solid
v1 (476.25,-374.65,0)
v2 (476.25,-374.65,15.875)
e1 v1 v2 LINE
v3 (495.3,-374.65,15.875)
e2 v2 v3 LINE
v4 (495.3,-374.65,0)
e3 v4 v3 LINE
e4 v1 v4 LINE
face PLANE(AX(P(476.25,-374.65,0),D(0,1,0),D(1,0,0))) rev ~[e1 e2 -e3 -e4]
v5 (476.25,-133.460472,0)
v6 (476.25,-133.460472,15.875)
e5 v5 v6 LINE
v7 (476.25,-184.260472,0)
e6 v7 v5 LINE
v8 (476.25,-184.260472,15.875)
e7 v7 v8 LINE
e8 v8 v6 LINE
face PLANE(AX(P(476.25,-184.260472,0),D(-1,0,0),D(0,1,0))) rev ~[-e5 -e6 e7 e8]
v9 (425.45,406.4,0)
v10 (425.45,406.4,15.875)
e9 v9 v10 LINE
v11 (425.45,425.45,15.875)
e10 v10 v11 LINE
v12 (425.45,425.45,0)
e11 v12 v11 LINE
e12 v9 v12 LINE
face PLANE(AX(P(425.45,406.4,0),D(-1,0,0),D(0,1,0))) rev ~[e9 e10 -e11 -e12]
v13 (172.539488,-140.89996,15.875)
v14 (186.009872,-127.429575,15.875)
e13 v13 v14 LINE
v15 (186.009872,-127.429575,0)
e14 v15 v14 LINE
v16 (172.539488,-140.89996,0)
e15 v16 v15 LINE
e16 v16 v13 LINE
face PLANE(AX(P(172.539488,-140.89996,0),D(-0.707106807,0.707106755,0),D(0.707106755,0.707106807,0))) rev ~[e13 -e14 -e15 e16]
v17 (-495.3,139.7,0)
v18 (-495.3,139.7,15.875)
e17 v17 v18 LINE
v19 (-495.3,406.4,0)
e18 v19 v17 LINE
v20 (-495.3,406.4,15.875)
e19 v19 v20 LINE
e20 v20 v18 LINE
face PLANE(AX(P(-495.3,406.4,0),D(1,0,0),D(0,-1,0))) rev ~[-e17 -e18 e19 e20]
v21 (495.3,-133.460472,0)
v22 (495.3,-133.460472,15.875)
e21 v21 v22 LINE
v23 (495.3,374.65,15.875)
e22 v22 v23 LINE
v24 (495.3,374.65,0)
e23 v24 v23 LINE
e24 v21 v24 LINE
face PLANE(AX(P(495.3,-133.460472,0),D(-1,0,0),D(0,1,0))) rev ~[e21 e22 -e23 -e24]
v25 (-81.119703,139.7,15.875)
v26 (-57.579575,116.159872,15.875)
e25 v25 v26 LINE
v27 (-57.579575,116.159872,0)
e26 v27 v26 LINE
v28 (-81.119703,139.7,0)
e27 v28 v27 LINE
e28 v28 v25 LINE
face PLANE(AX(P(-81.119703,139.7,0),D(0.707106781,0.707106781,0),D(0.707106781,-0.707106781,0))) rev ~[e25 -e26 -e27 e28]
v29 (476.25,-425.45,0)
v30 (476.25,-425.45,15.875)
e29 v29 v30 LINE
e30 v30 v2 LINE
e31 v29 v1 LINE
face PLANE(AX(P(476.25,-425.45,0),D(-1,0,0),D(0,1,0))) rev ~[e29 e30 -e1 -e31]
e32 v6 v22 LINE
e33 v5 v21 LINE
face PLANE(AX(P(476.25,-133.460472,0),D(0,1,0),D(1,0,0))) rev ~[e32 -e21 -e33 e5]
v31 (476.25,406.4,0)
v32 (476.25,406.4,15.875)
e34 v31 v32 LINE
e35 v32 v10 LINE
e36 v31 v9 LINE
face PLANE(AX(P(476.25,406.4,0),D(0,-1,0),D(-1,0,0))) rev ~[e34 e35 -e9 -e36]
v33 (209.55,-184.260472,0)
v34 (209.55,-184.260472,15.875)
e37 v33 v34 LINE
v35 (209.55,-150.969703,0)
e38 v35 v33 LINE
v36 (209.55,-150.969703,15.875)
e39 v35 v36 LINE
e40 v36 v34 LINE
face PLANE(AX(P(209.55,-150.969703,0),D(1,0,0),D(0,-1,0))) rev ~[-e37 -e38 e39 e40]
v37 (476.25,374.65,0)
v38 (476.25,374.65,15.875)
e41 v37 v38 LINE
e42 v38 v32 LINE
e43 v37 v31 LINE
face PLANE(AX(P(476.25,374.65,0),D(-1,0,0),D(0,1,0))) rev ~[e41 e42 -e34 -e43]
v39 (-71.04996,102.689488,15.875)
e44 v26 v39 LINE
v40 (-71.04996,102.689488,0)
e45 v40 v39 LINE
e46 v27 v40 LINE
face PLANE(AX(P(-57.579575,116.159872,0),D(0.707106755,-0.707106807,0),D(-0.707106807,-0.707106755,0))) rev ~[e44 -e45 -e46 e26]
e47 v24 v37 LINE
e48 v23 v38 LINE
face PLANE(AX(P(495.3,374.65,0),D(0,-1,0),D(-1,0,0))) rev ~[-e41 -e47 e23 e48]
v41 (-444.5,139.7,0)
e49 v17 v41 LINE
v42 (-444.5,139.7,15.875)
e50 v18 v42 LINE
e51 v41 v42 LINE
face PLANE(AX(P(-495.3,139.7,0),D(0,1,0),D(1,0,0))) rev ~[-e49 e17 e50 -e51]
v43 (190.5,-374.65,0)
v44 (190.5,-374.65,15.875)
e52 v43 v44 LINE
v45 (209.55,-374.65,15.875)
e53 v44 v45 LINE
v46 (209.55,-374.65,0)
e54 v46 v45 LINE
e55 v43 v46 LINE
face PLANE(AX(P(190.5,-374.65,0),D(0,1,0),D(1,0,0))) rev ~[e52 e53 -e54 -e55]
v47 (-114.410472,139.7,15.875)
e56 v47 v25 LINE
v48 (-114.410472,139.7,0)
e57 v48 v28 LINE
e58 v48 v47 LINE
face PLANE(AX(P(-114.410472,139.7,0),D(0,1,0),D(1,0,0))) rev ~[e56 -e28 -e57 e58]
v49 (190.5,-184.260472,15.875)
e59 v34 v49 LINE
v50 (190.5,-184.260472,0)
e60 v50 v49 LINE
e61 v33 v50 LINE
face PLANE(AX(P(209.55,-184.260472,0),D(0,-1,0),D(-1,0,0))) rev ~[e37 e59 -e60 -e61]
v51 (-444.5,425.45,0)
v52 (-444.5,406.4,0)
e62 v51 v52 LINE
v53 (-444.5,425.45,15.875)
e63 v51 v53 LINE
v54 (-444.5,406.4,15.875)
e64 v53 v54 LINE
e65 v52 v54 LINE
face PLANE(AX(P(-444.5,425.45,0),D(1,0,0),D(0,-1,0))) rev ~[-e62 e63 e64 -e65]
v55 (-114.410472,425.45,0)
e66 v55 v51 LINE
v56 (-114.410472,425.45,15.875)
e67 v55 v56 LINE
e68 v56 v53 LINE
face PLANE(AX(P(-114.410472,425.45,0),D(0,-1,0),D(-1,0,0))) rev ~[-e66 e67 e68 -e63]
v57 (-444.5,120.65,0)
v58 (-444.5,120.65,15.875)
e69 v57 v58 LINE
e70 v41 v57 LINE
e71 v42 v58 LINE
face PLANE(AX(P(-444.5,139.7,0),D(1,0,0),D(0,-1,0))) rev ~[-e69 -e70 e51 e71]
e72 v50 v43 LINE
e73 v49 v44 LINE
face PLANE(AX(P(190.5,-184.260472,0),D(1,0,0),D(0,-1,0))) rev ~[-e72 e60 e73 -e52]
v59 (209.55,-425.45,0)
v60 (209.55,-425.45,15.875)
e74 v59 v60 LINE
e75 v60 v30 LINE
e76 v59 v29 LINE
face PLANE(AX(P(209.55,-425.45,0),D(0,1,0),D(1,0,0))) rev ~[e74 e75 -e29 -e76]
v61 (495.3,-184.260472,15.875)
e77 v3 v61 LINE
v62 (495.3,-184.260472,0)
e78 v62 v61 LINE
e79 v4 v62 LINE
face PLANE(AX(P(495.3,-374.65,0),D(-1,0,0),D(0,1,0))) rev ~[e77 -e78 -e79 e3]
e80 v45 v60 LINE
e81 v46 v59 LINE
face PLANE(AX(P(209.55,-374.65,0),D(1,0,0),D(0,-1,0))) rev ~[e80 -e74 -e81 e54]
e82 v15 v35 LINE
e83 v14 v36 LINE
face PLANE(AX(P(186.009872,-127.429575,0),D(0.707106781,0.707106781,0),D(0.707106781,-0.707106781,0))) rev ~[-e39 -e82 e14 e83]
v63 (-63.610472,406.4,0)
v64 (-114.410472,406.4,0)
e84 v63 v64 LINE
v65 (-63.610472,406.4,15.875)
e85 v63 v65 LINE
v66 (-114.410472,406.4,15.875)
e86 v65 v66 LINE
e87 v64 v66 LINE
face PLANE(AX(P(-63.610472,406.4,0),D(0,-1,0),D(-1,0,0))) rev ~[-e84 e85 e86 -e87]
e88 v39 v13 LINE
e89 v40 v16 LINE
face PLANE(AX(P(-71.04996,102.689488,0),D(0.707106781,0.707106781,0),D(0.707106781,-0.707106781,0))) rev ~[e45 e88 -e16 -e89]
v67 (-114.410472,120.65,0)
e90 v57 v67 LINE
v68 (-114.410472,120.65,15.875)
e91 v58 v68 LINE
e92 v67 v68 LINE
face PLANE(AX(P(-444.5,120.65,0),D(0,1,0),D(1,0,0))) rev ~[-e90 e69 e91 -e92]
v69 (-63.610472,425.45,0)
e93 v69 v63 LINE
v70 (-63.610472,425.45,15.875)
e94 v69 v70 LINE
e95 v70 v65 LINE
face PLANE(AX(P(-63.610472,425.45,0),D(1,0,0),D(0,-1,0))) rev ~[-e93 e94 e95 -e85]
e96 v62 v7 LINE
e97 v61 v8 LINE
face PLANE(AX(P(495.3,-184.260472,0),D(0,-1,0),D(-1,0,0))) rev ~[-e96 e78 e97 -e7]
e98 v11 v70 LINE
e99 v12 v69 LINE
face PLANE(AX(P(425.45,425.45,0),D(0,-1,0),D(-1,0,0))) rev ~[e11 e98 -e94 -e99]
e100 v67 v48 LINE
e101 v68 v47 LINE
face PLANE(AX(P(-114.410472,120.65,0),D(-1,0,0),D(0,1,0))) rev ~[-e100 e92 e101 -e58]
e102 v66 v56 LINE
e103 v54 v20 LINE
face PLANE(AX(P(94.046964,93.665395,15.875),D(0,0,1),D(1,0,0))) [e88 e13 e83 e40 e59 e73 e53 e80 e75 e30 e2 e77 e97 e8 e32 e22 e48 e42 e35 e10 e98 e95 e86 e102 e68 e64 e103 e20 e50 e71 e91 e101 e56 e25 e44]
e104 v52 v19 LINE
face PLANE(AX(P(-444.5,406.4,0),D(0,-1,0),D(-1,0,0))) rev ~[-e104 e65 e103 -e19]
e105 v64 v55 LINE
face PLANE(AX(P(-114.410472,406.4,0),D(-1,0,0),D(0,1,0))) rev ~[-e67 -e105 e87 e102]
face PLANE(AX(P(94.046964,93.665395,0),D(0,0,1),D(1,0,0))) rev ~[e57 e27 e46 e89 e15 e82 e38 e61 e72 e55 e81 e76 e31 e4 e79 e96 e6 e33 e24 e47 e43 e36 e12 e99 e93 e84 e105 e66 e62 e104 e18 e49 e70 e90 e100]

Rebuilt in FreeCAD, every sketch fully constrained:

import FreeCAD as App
import Part
import Sketcher

V = App.Vector
Q = App.Units.Quantity


def add_polygon(sketch, points):
    """Adds a closed chain of lines whose ends are joined by coincident constraints."""
    first, n = sketch.GeometryCount, len(points)
    for a, b in zip(points, points[1:] + points[:1]):
        sketch.addGeometry(Part.LineSegment(App.Vector(*a, 0), App.Vector(*b, 0)), False)
    for i in range(n):
        sketch.addConstraint(Sketcher.Constraint("Coincident", first + i, 2, first + (i + 1) % n, 1))

doc = App.newDocument("Part")
body = doc.addObject("PartDesign::Body", "Body")

sketch1 = body.newObject("Sketcher::SketchObject", "Sketch")
sketch1.AttachmentSupport = (doc.getObject("XY_Plane"), [""])
sketch1.MapMode = "FlatFace"
add_polygon(sketch1, [(210, -375), (210, -425), (476, -425), (476, -375), (495, -375), (495, -184), (476, -184), (476, -133), (495, -133), (495, 375), (476, 375), (476, 406), (425, 406), (425, 425), (-64, 425), (-64, 406), (-114, 406), (-114, 425), (-444, 425), (-444, 406), (-495, 406), (-495, 140), (-444, 140), (-444, 121), (-114, 121), (-114, 140), (-81, 140), (-58, 116), (-71, 103), (173, -141), (186, -127), (210, -151), (210, -184), (190, -184), (190, -375)])
sketch1.addConstraint([
    Sketcher.Constraint("Vertical", 0),
    Sketcher.Constraint("Horizontal", 1),
    Sketcher.Constraint("Vertical", 2),
    Sketcher.Constraint("Horizontal", 3),
    Sketcher.Constraint("Vertical", 4),
    Sketcher.Constraint("Horizontal", 5),
    Sketcher.Constraint("Vertical", 6),
    Sketcher.Constraint("Horizontal", 7),
    Sketcher.Constraint("Vertical", 8),
    Sketcher.Constraint("Horizontal", 9),
    Sketcher.Constraint("Vertical", 10),
    Sketcher.Constraint("Horizontal", 11),
    Sketcher.Constraint("Vertical", 12),
    Sketcher.Constraint("Horizontal", 13),
    Sketcher.Constraint("Vertical", 14),
    Sketcher.Constraint("Horizontal", 15),
    Sketcher.Constraint("Vertical", 16),
    Sketcher.Constraint("Horizontal", 17),
    Sketcher.Constraint("Vertical", 18),
    Sketcher.Constraint("Horizontal", 19),
    Sketcher.Constraint("Vertical", 20),
    Sketcher.Constraint("Horizontal", 21),
    Sketcher.Constraint("Vertical", 22),
    Sketcher.Constraint("Horizontal", 23),
    Sketcher.Constraint("Vertical", 24),
    Sketcher.Constraint("Horizontal", 25),
    Sketcher.Constraint("Vertical", 31),
    Sketcher.Constraint("Horizontal", 32),
    Sketcher.Constraint("Vertical", 33),
    Sketcher.Constraint("Horizontal", 34),
    Sketcher.Constraint("Symmetric", 3, 2, 8, 2, -1),
    Sketcher.Constraint("Perpendicular", 26, 27),
    Sketcher.Constraint("Perpendicular", 27, 28),
    Sketcher.Constraint("Perpendicular", 28, 29),
    Sketcher.Constraint("Perpendicular", 29, 30),
    Sketcher.Constraint("Horizontal", 11, 2, 14, 2),
    Sketcher.Constraint("Horizontal", 13, 2, 16, 2),
    Sketcher.Constraint("Horizontal", 15, 2, 18, 2),
    Sketcher.Constraint("Horizontal", 21, 2, 24, 2),
    Sketcher.Constraint("Horizontal", 5, 2, 31, 2),
    Sketcher.Constraint("Horizontal", 3, 2, 33, 2),
    Sketcher.Constraint("Vertical", 2, 2, 5, 2),
    Sketcher.Constraint("Vertical", 6, 2, 9, 2),
    Sketcher.Constraint("Vertical", 18, 2, 21, 2),
    Sketcher.Constraint("Vertical", 16, 2, 23, 2),
    Sketcher.Constraint("Vertical", 0, 2, 30, 2),
    Sketcher.Constraint("Equal", 11, 15),
    Sketcher.Constraint("Equal", 15, 19),
    Sketcher.Constraint("Equal", 9, 32),
    Sketcher.Constraint("Equal", 21, 0),
    Sketcher.Constraint("Equal", 2, 6),
    Sketcher.Constraint("Equal", 34, 12),
    Sketcher.Constraint("Equal", 1, 20),
    Sketcher.Constraint("Equal", 18, 22),
    Sketcher.Constraint("Equal", 25, 31),
    Sketcher.Constraint("Equal", 27, 29),
    Sketcher.Constraint("Equal", 26, 30),
    Sketcher.Constraint("DistanceX", 11, 2, 11, 1, Q("2 in")),
    Sketcher.Constraint("DistanceX", 1, 1, 1, 2, Q("10.5 in")),
    Sketcher.Constraint("DistanceY", -1, 1, 10, 2, Q("16 in")),
    Sketcher.Constraint("Angle", 26, Q("-45 deg")),
    Sketcher.Constraint("DistanceY", 9, 2, 12, 2, Q("2 in")),
    Sketcher.Constraint("DistanceY", 22, 2, 17, 2, Q("12 in")),
    Sketcher.Constraint("DistanceX", -1, 1, 3, 2, Q("19.5 in")),
    Sketcher.Constraint("DistanceX", 17, 2, -1, 1, Q("17.5 in")),
    Sketcher.Constraint("Distance", 27, Q("0.75 in")),
    Sketcher.Constraint("Distance", 28, Q("13.5625 in")),
    Sketcher.Constraint("DistanceX", 13, 2, 13, 1, Q("489.060472 mm")),
    Sketcher.Constraint("DistanceX", 25, 1, 25, 2, Q("33.290769 mm")),
])
pad1 = body.newObject("PartDesign::Pad", "Pad")
pad1.Profile = sketch1
pad1.Length = Q("0.625 in")

doc.recompute()
